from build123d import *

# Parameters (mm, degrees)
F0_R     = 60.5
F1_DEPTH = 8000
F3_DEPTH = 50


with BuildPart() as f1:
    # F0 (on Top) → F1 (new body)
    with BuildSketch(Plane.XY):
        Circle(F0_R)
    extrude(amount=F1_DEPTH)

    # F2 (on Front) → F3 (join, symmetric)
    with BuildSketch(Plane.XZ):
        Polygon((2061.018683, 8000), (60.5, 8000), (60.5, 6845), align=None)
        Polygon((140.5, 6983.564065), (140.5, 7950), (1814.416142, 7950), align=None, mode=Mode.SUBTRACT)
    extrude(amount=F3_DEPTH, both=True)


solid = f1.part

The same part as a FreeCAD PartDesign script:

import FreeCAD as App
import Part
import Sketcher
Q = App.Units.Quantity

doc = App.newDocument("Part")
body = doc.addObject("PartDesign::Body", "Body")
body.AllowCompound = True

# Sketch on XY plane
sketch1 = body.newObject("Sketcher::SketchObject", "Sketch")
sketch1.AttachmentSupport = (doc.getObject("XY_Plane"), [""])
sketch1.MapMode = "FlatFace"
sketch1.addGeometry(Part.Circle(App.Vector(0, 0, 0), App.Vector(0, 0, 1), 60), False)
sketch1.addConstraint(Sketcher.Constraint("Coincident", 0, 3, -1, 1))
sketch1.addConstraint(Sketcher.Constraint("Diameter", 0, Q("121 mm")))
pad1 = body.newObject("PartDesign::Pad", "Pad")
pad1.Profile = sketch1
pad1.Length = 8000

# Sketch on XZ plane
sketch2 = body.newObject("Sketcher::SketchObject", "Sketch001")
sketch2.AttachmentSupport = (doc.getObject("XZ_Plane"), [""])
sketch2.MapMode = "FlatFace"
sketch2.addGeometry(Part.LineSegment(App.Vector(2061, 8000, 0), App.Vector(60, 8000, 0)), False)
sketch2.addGeometry(Part.LineSegment(App.Vector(60, 8000, 0), App.Vector(60, 6845, 0)), False)
sketch2.addGeometry(Part.LineSegment(App.Vector(60, 6845, 0), App.Vector(2061, 8000, 0)), False)
sketch2.addGeometry(Part.LineSegment(App.Vector(1814, 7950, 0), App.Vector(140, 6984, 0)), False)
sketch2.addGeometry(Part.LineSegment(App.Vector(140, 6984, 0), App.Vector(140, 7950, 0)), False)
sketch2.addGeometry(Part.LineSegment(App.Vector(140, 7950, 0), App.Vector(1814, 7950, 0)), False)
sketch2.addConstraint(Sketcher.Constraint("Coincident", 0, 2, 1, 1))
sketch2.addConstraint(Sketcher.Constraint("Coincident", 1, 2, 2, 1))
sketch2.addConstraint(Sketcher.Constraint("Coincident", 2, 2, 0, 1))
sketch2.addConstraint(Sketcher.Constraint("Coincident", 3, 2, 4, 1))
sketch2.addConstraint(Sketcher.Constraint("Coincident", 4, 2, 5, 1))
sketch2.addConstraint(Sketcher.Constraint("Coincident", 5, 2, 3, 1))
sketch2.addConstraint(Sketcher.Constraint("Horizontal", 0))
sketch2.addConstraint(Sketcher.Constraint("Vertical", 1))
sketch2.addConstraint(Sketcher.Constraint("Vertical", 4))
sketch2.addConstraint(Sketcher.Constraint("Horizontal", 5))
sketch2.addConstraint(Sketcher.Constraint("Parallel", 2, 3))
sketch2.addConstraint(Sketcher.Constraint("DistanceY", 1, 2, 1, 1, Q("1155 mm")))
sketch2.addConstraint(Sketcher.Constraint("Angle", 2, Q("30 deg")))
sketch2.addConstraint(Sketcher.Constraint("DistanceY", -1, 1, 0, 2, Q("8000 mm")))
sketch2.addConstraint(Sketcher.Constraint("DistanceY", -1, 1, 4, 2, Q("7950 mm")))
sketch2.addConstraint(Sketcher.Constraint("DistanceX", 1, 2, 3, 2, Q("80 mm")))
sketch2.addConstraint(Sketcher.Constraint("DistanceX", -1, 1, 0, 2, Q("60.5 mm")))
sketch2.addConstraint(Sketcher.Constraint("DistanceX", 5, 1, 5, 2, Q("1673.916142 mm")))
pad2 = body.newObject("PartDesign::Pad", "Pad001")
pad2.Profile = sketch2
pad2.Length = 100
pad2.Midplane = True

doc.recompute()
